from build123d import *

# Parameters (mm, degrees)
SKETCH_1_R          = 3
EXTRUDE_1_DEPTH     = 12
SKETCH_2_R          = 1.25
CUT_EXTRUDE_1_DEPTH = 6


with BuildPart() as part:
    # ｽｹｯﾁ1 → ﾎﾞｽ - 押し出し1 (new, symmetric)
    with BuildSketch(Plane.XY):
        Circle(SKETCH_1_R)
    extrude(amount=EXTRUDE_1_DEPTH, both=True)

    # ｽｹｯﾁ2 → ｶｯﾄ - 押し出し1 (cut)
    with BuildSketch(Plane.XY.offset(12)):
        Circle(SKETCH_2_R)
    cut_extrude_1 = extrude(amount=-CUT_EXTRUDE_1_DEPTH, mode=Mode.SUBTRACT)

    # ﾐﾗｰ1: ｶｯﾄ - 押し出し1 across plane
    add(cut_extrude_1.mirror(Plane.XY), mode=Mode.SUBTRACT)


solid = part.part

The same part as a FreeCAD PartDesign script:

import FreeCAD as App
import Part
import Sketcher
from FreeCAD import Vector

doc = App.newDocument("Part")
body = doc.addObject("PartDesign::Body", "Body")

# Sketch on XY plane
sketch1 = body.newObject("Sketcher::SketchObject", "Sketch")
sketch1.AttachmentSupport = (doc.getObject("XY_Plane"), [""])
sketch1.MapMode = "FlatFace"
sketch1.addGeometry(Part.Circle(Vector(0, 0, 0), Vector(0, 0, 1), 3), False)
sketch1.addConstraint([
    Sketcher.Constraint("Coincident", 0, 3, -1, 1),
    Sketcher.Constraint("Diameter", 0, 6.0),
])
pad1 = body.newObject("PartDesign::Pad", "Pad")
pad1.Profile = sketch1
pad1.Length = 24
pad1.Midplane = True

# Sketch on XY plane
sketch2 = body.newObject("Sketcher::SketchObject", "Sketch001")
sketch2.AttachmentSupport = (doc.getObject("XY_Plane"), [""])
sketch2.MapMode = "FlatFace"
sketch2.AttachmentOffset = App.Placement(Vector(0, 0, 12), App.Rotation())
sketch2.addGeometry(Part.Circle(Vector(0, 0, 0), Vector(0, 0, 1), 1.2), False)
sketch2.addConstraint([
    Sketcher.Constraint("Coincident", 0, 3, -1, 1),
    Sketcher.Constraint("Diameter", 0, 2.5),
])
pocket1 = body.newObject("PartDesign::Pocket", "Pocket")
pocket1.Profile = sketch2
pocket1.Length = 6
doc.recompute()

mirrored = body.newObject("PartDesign::Mirrored", "Mirrored")
mirrored.Originals = [pocket1]
mirrored.MirrorPlane = (doc.getObject("XY_Plane"), [""])
body.Tip = mirrored

doc.recompute()
